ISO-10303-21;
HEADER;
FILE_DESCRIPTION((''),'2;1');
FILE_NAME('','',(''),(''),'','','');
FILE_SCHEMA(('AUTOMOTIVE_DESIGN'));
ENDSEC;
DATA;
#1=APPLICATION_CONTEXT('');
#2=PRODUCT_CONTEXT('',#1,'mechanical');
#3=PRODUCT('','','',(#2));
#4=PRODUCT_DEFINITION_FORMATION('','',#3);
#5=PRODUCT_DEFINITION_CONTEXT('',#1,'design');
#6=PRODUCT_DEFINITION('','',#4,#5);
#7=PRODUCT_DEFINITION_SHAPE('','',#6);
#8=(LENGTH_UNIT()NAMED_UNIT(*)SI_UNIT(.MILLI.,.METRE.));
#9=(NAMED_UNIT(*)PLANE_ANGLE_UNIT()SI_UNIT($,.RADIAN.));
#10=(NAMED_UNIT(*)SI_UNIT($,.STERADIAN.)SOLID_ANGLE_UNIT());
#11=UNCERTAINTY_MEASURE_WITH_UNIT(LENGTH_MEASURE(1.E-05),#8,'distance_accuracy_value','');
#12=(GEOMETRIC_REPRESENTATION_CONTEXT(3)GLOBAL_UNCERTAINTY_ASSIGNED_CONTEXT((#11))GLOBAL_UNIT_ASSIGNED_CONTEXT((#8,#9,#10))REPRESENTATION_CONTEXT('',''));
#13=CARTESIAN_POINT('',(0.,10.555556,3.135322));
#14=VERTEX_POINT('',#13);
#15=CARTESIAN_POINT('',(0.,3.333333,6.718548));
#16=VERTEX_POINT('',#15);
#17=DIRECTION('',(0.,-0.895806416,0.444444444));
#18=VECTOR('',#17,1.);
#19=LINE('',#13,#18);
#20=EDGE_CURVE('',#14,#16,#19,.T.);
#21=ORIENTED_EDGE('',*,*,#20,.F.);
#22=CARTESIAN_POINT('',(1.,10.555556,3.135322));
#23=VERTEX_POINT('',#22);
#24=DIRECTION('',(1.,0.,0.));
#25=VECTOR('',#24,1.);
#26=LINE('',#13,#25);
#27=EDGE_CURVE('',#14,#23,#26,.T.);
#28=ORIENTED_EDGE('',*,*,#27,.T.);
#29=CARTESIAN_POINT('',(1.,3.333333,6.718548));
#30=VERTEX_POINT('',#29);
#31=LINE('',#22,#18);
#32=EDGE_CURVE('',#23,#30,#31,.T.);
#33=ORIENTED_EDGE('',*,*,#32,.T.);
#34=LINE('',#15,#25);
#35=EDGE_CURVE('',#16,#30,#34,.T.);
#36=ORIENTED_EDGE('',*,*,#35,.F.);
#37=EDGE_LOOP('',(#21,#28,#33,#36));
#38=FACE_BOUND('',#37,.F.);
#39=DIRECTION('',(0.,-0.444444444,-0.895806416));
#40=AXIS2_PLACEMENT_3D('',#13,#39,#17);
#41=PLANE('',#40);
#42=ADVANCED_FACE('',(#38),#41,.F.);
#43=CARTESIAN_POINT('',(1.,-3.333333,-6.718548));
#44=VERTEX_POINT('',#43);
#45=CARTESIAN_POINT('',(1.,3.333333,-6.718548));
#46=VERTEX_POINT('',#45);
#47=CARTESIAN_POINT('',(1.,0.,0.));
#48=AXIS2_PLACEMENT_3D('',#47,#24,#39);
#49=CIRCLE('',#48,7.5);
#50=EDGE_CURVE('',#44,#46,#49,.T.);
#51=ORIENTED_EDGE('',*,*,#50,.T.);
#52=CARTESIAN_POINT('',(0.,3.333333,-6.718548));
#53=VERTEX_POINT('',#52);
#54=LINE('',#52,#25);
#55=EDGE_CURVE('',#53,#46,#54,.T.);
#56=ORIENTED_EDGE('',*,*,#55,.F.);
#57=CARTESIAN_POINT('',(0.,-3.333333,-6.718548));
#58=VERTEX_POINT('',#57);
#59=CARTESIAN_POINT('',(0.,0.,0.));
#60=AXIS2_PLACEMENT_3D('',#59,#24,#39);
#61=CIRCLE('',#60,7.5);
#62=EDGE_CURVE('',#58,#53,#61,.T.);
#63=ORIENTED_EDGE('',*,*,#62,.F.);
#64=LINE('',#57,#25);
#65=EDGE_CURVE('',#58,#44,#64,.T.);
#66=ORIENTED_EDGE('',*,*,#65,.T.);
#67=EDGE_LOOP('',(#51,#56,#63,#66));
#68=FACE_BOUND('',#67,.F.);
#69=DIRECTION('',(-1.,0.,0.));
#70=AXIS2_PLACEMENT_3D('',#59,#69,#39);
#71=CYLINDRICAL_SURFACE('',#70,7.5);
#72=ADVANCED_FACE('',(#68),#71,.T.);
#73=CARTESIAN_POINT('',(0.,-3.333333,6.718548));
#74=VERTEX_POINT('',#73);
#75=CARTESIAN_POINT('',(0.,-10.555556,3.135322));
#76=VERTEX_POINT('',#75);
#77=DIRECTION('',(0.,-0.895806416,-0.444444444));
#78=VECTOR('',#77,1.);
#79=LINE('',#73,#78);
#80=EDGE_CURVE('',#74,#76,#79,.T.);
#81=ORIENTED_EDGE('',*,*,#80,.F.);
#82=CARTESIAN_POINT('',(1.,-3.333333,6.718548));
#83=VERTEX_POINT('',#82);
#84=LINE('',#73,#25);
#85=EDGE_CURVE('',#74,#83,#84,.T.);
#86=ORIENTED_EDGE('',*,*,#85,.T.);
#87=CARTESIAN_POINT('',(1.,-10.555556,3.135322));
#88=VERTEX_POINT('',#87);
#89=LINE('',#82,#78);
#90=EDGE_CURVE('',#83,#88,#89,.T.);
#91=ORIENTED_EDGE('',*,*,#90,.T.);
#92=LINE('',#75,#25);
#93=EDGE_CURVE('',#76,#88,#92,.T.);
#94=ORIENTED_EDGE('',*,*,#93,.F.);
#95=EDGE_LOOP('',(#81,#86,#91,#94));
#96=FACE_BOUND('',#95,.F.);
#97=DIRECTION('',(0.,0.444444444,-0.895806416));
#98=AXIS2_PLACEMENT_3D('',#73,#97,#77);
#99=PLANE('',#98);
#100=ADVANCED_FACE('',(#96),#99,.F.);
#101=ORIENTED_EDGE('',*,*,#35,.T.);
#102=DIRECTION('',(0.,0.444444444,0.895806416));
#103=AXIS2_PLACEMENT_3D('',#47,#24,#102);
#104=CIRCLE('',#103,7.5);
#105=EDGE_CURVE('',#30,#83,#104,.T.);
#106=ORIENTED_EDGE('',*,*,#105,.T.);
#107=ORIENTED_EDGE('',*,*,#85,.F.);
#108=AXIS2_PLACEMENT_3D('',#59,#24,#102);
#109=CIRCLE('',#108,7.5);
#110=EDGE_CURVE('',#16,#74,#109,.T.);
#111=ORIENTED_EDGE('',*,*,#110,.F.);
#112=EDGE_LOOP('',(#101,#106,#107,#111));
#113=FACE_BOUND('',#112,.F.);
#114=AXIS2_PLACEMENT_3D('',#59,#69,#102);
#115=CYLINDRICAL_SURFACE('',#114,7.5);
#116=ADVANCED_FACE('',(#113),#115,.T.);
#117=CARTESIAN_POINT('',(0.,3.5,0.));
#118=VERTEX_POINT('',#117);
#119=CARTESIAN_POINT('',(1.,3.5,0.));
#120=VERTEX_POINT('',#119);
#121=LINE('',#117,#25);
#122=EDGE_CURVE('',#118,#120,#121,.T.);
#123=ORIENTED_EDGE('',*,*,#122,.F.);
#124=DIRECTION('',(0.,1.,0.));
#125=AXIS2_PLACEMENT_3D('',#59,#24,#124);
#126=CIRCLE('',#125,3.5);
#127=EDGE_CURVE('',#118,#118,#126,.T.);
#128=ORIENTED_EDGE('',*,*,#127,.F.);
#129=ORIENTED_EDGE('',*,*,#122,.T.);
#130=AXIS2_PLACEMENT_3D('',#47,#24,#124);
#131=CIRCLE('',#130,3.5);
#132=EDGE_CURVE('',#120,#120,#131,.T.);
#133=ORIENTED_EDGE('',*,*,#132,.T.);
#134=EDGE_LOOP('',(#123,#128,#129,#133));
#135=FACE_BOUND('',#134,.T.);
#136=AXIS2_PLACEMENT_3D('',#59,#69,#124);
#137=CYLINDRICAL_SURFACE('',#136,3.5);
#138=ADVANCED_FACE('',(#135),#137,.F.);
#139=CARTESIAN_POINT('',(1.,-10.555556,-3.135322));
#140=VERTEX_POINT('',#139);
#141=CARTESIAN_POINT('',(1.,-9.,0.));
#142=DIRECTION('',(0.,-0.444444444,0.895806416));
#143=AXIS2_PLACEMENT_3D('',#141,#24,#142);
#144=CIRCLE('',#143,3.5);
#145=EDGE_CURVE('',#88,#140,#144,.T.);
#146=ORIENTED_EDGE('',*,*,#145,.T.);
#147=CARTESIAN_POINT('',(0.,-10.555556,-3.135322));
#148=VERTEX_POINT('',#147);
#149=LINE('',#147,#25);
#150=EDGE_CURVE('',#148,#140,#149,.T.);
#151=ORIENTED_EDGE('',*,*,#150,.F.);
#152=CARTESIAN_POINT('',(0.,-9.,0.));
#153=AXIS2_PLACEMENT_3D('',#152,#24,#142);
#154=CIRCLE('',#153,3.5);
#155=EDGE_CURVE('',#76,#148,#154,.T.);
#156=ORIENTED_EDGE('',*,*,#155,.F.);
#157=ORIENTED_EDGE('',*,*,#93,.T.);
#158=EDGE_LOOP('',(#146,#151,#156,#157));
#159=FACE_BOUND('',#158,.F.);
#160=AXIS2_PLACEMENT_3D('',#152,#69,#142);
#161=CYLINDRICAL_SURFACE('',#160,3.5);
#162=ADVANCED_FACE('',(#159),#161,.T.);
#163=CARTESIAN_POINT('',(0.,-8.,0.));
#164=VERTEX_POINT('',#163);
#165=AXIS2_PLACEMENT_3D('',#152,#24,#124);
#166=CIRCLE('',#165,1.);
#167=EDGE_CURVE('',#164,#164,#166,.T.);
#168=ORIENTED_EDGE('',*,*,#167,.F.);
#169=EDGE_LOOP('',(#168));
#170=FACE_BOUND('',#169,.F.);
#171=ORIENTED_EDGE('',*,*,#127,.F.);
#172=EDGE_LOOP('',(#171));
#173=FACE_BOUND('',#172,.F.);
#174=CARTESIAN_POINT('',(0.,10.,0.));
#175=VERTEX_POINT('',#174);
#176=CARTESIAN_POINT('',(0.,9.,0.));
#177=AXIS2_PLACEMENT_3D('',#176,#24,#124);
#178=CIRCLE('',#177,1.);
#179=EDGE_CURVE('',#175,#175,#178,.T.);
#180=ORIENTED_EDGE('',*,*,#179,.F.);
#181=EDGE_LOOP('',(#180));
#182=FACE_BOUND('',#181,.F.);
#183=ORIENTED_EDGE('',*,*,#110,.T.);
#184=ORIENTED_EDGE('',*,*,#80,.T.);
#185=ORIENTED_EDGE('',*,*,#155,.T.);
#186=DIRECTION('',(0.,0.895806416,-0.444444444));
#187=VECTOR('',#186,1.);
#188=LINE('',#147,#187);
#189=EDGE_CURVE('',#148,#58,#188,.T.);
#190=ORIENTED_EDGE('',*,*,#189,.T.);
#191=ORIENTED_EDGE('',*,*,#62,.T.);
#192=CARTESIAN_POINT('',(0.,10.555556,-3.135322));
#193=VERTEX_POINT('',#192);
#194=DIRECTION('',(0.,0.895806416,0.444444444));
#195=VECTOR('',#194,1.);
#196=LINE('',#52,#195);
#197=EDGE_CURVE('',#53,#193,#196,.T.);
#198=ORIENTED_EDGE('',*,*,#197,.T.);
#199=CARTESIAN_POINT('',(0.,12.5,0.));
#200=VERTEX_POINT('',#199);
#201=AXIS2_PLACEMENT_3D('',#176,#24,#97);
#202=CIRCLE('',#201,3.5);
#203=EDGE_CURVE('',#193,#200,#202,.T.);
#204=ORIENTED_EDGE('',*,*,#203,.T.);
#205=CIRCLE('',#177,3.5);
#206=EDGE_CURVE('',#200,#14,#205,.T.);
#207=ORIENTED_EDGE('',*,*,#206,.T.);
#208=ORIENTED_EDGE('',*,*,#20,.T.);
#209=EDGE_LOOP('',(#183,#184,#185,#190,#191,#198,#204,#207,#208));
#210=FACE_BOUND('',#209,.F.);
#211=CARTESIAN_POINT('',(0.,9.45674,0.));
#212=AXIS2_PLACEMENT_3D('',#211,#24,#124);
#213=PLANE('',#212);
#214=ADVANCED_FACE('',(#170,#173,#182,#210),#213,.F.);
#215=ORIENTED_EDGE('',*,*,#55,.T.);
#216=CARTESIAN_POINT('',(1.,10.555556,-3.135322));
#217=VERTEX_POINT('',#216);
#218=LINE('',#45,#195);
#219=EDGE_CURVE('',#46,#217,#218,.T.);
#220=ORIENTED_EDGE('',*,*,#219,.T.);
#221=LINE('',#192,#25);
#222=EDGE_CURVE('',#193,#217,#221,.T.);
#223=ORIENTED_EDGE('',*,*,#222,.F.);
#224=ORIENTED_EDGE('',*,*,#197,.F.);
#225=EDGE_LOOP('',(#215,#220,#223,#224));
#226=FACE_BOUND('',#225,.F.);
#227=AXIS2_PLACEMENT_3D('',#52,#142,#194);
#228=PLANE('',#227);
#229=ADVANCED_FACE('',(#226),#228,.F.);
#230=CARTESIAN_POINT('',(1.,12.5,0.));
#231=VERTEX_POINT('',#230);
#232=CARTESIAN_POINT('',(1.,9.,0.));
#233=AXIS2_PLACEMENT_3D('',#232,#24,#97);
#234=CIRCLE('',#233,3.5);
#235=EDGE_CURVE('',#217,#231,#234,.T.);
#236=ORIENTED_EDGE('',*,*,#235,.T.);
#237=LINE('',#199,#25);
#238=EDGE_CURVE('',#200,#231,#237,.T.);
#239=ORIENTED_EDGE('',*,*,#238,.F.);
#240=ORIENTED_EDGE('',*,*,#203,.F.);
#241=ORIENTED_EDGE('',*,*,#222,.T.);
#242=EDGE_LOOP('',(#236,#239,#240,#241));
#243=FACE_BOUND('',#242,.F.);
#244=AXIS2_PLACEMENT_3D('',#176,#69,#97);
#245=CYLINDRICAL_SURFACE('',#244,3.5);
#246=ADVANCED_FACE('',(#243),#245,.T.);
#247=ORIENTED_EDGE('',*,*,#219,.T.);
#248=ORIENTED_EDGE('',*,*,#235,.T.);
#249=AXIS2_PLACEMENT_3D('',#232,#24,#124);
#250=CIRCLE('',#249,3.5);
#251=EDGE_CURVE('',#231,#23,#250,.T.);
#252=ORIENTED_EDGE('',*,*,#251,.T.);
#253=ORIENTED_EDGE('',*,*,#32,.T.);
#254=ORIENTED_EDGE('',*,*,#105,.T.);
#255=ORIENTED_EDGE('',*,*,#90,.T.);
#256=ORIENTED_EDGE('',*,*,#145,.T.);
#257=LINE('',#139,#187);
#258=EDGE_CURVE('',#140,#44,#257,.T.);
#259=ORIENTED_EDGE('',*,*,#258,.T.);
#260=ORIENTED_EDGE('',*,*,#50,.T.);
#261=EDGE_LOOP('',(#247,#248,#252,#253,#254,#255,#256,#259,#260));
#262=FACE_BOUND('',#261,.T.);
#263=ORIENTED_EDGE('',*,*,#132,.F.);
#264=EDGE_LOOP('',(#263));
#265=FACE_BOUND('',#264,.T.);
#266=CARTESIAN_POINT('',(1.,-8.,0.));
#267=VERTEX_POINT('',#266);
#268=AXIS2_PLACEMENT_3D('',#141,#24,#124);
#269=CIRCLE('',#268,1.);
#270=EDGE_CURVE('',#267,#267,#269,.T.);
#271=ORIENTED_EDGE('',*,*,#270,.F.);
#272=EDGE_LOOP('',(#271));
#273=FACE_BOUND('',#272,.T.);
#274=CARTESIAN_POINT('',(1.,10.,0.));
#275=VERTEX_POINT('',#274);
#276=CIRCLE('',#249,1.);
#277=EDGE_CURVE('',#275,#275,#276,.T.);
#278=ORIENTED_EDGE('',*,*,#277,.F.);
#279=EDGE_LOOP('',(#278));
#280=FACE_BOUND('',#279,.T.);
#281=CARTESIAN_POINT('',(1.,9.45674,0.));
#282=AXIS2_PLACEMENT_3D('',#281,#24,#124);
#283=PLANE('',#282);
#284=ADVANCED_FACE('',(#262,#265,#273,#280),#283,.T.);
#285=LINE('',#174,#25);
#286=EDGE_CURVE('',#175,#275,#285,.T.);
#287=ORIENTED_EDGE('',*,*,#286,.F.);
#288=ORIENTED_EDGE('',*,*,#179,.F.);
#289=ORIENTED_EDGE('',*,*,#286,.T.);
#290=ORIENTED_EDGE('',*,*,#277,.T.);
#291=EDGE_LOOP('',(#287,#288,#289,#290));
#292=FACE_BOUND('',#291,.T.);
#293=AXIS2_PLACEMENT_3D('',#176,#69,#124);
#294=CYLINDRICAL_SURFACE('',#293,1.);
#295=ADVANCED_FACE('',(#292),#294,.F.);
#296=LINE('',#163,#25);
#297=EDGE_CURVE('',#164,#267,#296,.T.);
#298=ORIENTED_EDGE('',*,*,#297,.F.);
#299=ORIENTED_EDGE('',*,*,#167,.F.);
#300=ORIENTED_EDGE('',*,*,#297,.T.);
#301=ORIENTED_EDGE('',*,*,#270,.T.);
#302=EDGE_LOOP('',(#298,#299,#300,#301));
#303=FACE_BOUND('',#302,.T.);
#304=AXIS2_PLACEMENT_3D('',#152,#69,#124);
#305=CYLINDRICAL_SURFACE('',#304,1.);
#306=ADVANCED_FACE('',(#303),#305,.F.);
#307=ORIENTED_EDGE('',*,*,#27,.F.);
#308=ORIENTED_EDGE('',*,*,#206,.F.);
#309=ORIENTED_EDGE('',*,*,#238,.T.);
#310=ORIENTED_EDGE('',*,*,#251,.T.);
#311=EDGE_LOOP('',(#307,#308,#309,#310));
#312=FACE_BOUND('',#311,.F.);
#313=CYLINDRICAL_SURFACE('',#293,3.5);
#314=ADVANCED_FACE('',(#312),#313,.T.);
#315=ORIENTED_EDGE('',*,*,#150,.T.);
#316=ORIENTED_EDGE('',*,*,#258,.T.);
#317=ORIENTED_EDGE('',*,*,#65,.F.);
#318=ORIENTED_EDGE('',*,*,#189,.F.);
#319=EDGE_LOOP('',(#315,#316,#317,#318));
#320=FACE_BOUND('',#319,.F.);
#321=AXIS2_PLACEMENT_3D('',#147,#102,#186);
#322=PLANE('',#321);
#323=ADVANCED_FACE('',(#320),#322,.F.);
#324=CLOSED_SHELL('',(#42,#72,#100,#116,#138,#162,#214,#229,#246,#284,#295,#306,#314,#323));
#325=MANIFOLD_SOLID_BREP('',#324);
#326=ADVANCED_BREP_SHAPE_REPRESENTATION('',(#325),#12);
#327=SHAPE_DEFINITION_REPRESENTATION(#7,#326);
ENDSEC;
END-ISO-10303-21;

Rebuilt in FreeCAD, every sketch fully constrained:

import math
import FreeCAD as App
import Part
import Sketcher

doc = App.newDocument("Part")
params = doc.addObject("Spreadsheet::Sheet", "Params")
for row, (alias, value) in enumerate([
    ("sketch1_diameter", "2 mm"),
    ("sketch1_diameter2", "7 mm"),
    ("sketch1_radius", "7.5 mm"),
    ("pad1_length", "1 mm"),
], start=1):
    params.set(f"A{row}", alias)
    params.set(f"B{row}", "=" + value)
    params.setAlias(f"B{row}", alias)

body = doc.addObject("PartDesign::Body", "Body")

sketch1 = body.newObject("Sketcher::SketchObject", "Sketch")
sketch1.AttachmentSupport = (doc.getObject("YZ_Plane"), [""])
sketch1.MapMode = "FlatFace"
sketch1.addGeometry([
    Part.ArcOfCircle(Part.Circle(App.Vector(9, 0, 0), App.Vector(0, 0, 1), 3.5), math.radians(-64), math.radians(0)),
    Part.ArcOfCircle(Part.Circle(App.Vector(9, 0, 0), App.Vector(0, 0, 1), 3.5), math.radians(0), math.radians(64)),
    Part.LineSegment(App.Vector(10.6, 3.1, 0), App.Vector(3.3, 6.7, 0)),
    Part.ArcOfCircle(Part.Circle(App.Vector(0, 0, 0), App.Vector(0, 0, 1), 7.5), math.radians(64), math.radians(116)),
    Part.LineSegment(App.Vector(-3.3, 6.7, 0), App.Vector(-10.6, 3.1, 0)),
    Part.ArcOfCircle(Part.Circle(App.Vector(-9, 0, 0), App.Vector(0, 0, 1), 3.5), math.radians(116), math.radians(244)),
    Part.LineSegment(App.Vector(-10.6, -3.1, 0), App.Vector(-3.3, -6.7, 0)),
    Part.ArcOfCircle(Part.Circle(App.Vector(0, 0, 0), App.Vector(0, 0, 1), 7.5), math.radians(-116), math.radians(-64)),
    Part.LineSegment(App.Vector(3.3, -6.7, 0), App.Vector(10.6, -3.1, 0)),
    Part.Circle(App.Vector(-9, 0, 0), App.Vector(0, 0, 1), 1),
    Part.Circle(App.Vector(0, 0, 0), App.Vector(0, 0, 1), 3.5),
    Part.Circle(App.Vector(9, 0, 0), App.Vector(0, 0, 1), 1),
], False)
sketch1.addConstraint([
    Sketcher.Constraint("Tangent", 0, 2, 1, 1),
    Sketcher.Constraint("Tangent", 1, 2, 2, 1),
    Sketcher.Constraint("Tangent", 2, 2, 3, 1),
    Sketcher.Constraint("Tangent", 3, 2, 4, 1),
    Sketcher.Constraint("Tangent", 4, 2, 5, 1),
    Sketcher.Constraint("Tangent", 5, 2, 6, 1),
    Sketcher.Constraint("Tangent", 6, 2, 7, 1),
    Sketcher.Constraint("Tangent", 7, 2, 8, 1),
    Sketcher.Constraint("Tangent", 8, 2, 0, 1),
    Sketcher.Constraint("Coincident", 3, 3, -1, 1),
    Sketcher.Constraint("Coincident", 7, 3, -1, 1),
    Sketcher.Constraint("Coincident", 10, 3, -1, 1),
    Sketcher.Constraint("Coincident", 9, 3, 5, 3),
    Sketcher.Constraint("Coincident", 11, 3, 0, 3),
    Sketcher.Constraint("Equal", 0, 1),
    Sketcher.Constraint("Equal", 1, 5),
    Sketcher.Constraint("Equal", 3, 7),
    Sketcher.Constraint("Equal", 5, 10),
    Sketcher.Constraint("Equal", 9, 11),
    Sketcher.Constraint("Symmetric", 0, 3, 5, 3, -1, 1),
    Sketcher.Constraint("PointOnObject", 0, 3, -1),
    Sketcher.Constraint("PointOnObject", 0, 2, -1),
    Sketcher.Constraint("Diameter", 9, 2.0),
    Sketcher.Constraint("Diameter", 10, 7.0),
    Sketcher.Constraint("Radius", 3, 7.5),
    Sketcher.Constraint("DistanceX", -1, 1, 0, 3, 9.0),
])
sketch1.setExpression("Constraints[22]", "Params.sketch1_diameter")
sketch1.setExpression("Constraints[23]", "Params.sketch1_diameter2")
sketch1.setExpression("Constraints[24]", "Params.sketch1_radius")
pad1 = body.newObject("PartDesign::Pad", "Pad")
pad1.Profile = sketch1
pad1.setExpression("Length", "Params.pad1_length")

doc.recompute()
